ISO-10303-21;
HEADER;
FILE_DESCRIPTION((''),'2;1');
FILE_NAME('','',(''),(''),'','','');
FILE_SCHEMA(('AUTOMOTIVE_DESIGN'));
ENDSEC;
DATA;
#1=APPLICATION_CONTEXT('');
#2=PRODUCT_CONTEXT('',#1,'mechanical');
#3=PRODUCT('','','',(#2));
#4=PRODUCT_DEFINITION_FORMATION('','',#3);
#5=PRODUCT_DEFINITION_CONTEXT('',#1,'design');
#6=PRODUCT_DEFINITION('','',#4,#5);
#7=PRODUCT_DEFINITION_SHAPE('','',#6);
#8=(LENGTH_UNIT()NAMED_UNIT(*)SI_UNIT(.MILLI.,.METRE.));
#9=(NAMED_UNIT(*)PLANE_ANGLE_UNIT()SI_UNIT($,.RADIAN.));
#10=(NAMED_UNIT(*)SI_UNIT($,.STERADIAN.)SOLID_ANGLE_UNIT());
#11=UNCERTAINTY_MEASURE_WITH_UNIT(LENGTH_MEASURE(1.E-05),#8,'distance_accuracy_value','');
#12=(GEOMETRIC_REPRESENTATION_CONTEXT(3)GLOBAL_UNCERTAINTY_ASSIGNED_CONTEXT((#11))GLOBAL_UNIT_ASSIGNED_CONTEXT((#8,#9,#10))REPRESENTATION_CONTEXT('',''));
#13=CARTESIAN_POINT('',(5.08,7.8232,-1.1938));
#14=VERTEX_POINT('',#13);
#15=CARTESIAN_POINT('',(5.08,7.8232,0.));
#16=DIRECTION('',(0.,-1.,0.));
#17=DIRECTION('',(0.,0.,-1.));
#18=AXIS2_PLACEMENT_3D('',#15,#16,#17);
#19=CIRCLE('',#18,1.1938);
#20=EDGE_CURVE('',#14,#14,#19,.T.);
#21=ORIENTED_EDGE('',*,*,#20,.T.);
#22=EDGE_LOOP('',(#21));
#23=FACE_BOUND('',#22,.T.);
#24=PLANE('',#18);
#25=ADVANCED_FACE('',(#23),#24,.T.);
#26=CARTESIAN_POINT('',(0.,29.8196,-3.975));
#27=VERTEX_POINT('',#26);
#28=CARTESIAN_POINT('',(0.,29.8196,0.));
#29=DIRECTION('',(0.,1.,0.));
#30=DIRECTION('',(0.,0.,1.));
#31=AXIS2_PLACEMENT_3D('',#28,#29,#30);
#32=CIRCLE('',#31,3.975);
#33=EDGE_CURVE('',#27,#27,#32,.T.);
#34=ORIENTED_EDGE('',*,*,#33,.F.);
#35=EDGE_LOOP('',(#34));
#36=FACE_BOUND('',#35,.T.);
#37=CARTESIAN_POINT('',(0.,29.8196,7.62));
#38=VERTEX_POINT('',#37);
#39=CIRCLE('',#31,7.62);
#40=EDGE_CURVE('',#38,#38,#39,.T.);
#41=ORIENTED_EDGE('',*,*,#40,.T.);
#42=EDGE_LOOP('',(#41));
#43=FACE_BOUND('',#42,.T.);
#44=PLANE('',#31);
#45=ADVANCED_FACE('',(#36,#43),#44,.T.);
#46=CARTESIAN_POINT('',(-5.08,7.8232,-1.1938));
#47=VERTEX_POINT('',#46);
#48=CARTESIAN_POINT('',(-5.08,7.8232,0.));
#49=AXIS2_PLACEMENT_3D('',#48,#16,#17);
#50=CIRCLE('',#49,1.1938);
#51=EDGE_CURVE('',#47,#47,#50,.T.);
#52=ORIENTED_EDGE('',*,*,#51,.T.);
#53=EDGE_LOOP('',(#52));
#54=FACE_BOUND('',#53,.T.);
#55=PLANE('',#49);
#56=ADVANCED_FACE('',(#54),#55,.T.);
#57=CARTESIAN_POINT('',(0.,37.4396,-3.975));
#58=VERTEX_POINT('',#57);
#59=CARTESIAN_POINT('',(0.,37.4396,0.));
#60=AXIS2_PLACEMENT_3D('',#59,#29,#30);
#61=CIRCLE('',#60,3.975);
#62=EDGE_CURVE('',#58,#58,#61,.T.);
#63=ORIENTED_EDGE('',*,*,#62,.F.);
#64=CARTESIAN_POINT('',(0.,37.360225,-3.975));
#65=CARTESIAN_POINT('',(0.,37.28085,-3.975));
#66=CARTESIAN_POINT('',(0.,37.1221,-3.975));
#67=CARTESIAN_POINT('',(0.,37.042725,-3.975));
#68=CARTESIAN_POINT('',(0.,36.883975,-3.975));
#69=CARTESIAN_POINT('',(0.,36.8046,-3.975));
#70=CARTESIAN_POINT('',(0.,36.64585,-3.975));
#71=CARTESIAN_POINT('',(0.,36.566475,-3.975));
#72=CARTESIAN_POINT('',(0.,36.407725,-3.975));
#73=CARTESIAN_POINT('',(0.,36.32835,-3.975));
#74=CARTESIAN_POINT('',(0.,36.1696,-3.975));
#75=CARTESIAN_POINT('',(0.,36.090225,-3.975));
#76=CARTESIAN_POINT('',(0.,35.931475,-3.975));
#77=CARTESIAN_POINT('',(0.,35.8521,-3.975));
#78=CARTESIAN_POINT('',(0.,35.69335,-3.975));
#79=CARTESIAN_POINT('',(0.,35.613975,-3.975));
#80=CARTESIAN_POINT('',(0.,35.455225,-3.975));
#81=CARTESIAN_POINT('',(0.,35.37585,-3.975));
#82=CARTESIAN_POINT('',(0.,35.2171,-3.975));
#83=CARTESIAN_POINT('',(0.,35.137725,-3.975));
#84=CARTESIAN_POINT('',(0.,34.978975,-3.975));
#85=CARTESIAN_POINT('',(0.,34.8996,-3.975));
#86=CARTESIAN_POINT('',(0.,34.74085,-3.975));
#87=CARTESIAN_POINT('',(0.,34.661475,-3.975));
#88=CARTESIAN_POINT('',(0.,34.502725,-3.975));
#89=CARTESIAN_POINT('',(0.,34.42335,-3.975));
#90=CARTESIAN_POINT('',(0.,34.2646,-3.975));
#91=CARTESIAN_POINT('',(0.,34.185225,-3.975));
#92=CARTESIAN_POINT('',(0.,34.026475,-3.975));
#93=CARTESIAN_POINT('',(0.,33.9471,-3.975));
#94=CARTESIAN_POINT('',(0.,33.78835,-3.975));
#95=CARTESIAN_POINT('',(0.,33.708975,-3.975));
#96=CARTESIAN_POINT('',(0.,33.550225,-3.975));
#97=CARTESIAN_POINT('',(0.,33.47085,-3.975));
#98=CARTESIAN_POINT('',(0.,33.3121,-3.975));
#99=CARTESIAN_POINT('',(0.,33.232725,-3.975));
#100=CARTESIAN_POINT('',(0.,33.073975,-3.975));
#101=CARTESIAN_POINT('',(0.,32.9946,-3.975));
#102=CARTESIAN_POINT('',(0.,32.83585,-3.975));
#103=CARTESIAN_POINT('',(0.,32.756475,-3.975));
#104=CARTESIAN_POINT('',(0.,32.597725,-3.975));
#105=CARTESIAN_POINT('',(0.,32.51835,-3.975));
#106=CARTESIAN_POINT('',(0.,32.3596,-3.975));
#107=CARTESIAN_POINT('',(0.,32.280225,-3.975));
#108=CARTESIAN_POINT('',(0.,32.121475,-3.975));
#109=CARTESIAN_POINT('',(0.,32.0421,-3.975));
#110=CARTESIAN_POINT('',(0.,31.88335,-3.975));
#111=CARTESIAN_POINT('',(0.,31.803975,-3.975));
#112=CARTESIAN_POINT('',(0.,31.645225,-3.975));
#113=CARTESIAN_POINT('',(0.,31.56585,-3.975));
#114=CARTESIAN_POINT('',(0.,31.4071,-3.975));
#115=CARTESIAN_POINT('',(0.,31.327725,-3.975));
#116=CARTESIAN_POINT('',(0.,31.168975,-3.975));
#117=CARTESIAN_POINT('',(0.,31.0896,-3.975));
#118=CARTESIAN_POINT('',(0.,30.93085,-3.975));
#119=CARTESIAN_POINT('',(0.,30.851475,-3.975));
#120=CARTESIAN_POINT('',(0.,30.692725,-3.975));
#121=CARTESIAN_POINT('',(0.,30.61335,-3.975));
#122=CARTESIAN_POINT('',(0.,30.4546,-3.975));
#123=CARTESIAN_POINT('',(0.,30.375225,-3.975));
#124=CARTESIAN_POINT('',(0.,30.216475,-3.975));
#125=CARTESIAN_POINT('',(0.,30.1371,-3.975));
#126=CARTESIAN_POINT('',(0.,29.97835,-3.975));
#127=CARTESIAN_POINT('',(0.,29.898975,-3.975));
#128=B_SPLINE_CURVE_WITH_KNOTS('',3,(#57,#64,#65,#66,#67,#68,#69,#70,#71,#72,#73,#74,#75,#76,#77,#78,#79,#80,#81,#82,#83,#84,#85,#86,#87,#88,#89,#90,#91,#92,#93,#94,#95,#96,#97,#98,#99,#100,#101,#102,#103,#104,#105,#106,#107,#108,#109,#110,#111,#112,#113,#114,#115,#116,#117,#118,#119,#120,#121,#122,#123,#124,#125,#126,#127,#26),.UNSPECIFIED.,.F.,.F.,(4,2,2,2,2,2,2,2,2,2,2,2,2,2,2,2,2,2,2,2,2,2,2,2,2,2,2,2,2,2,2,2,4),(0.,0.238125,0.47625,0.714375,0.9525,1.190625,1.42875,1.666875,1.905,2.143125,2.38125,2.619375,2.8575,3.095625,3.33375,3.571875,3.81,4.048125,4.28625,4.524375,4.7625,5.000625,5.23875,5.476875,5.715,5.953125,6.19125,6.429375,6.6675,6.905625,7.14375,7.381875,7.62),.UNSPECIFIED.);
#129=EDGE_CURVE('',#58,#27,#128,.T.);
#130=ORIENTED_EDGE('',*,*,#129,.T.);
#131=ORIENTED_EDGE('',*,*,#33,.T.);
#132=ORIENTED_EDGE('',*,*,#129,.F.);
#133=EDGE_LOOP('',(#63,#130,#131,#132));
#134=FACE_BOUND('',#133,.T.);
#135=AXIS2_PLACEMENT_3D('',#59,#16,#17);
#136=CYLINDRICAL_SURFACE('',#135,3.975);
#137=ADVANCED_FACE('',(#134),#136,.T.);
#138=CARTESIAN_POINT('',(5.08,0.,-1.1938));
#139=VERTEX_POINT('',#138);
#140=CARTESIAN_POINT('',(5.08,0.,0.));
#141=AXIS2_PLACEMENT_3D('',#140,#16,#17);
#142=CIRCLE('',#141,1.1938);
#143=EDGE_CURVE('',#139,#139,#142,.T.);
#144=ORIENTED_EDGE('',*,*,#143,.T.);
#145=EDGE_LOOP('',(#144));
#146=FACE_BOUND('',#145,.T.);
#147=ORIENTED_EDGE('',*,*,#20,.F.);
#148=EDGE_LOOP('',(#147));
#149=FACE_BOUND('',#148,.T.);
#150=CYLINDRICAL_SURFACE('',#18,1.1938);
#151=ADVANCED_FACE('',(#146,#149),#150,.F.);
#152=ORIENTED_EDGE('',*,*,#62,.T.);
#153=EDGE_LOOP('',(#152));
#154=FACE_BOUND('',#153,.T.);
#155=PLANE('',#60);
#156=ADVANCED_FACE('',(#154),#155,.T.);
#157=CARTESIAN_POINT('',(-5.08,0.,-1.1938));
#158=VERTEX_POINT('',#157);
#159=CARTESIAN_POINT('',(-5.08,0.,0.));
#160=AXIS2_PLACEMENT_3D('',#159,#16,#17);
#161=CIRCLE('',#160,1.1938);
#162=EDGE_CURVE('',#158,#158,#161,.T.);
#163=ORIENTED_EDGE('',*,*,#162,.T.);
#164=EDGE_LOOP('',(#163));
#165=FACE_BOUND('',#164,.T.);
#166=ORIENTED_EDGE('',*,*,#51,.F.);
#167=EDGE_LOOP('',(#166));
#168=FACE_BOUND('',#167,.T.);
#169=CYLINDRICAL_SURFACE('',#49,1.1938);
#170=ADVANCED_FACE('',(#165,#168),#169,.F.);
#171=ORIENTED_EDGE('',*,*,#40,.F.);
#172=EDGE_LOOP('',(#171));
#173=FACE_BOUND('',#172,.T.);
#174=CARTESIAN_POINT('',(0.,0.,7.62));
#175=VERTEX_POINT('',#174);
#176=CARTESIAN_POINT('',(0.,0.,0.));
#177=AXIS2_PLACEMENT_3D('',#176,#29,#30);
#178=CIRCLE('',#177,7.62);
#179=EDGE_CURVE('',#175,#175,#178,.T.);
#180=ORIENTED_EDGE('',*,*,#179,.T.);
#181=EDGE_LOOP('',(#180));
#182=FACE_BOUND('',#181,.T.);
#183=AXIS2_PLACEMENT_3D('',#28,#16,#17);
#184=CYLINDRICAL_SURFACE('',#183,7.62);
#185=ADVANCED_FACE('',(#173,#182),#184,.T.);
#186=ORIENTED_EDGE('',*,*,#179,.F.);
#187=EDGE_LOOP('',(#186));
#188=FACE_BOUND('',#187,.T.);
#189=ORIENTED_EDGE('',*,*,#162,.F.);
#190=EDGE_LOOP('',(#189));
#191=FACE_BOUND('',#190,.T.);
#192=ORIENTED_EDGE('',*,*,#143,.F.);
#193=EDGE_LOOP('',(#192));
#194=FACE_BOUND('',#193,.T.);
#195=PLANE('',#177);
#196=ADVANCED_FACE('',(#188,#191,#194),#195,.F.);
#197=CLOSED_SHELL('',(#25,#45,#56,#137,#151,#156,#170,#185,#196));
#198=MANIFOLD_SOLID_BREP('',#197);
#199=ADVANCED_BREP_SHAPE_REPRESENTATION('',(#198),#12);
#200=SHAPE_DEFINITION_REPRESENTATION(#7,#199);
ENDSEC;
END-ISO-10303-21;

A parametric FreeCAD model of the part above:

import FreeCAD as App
import Part
import Sketcher
Q = App.Units.Quantity

doc = App.newDocument("Part")
body = doc.addObject("PartDesign::Body", "Body")

# Sketch on XZ plane
sketch1 = doc.addObject("Sketcher::SketchObject", "Sketch")
body.addObject(sketch1)
sketch1.AttachmentSupport = (doc.XZ_Plane, [""])
sketch1.MapMode = "FlatFace"
sketch1.addGeometry(Part.Circle(App.Vector(0, 0, 0), App.Vector(0, 0, 1), 8), False)
sketch1.addConstraint(Sketcher.Constraint("Coincident", 0, 3, -1, 1))
sketch1.addConstraint(Sketcher.Constraint("Diameter", 0, Q("0.6 in")))
pad1 = doc.addObject("PartDesign::Pad", "Pad")
body.addObject(pad1)
pad1.Profile = sketch1
pad1.Length = Q("1.174 in")
pad1.Reversed = True

# Sketch on XZ plane
sketch2 = doc.addObject("Sketcher::SketchObject", "Sketch001")
body.addObject(sketch2)
sketch2.AttachmentSupport = (doc.XZ_Plane, [""])
sketch2.MapMode = "FlatFace"
sketch2.AttachmentOffset = App.Placement(App.Vector(0, 0, -1.174 * 25.4), App.Rotation())
sketch2.addGeometry(Part.Circle(App.Vector(0, 0, 0), App.Vector(0, 0, 1), 4), False)
sketch2.addConstraint(Sketcher.Constraint("Coincident", 0, 3, -1, 1))
sketch2.addConstraint(Sketcher.Constraint("Diameter", 0, 7.95))
pad2 = doc.addObject("PartDesign::Pad", "Pad001")
body.addObject(pad2)
pad2.Profile = sketch2
pad2.Length = Q("0.3 in")
pad2.Reversed = True

# Sketch on XZ plane
sketch3 = doc.addObject("Sketcher::SketchObject", "Sketch002")
body.addObject(sketch3)
sketch3.AttachmentSupport = (doc.XZ_Plane, [""])
sketch3.MapMode = "FlatFace"
sketch3.addGeometry(Part.Circle(App.Vector(-5.1, 0, 0), App.Vector(0, 0, 1), 1.2), False)
sketch3.addGeometry(Part.Circle(App.Vector(5.1, 0, 0), App.Vector(0, 0, 1), 1.2), False)
sketch3.addConstraint(Sketcher.Constraint("Equal", 0, 1))
sketch3.addConstraint(Sketcher.Constraint("Symmetric", 0, 3, 1, 3, -1, 1))
sketch3.addConstraint(Sketcher.Constraint("PointOnObject", 0, 3, -1))
sketch3.addConstraint(Sketcher.Constraint("Diameter", 0, Q("0.094 in")))
sketch3.addConstraint(Sketcher.Constraint("DistanceX", 0, 3, -1, 1, Q("0.2 in")))
pocket1 = doc.addObject("PartDesign::Pocket", "Pocket")
body.addObject(pocket1)
pocket1.Profile = sketch3
pocket1.Length = Q("0.308 in")

doc.recompute()
